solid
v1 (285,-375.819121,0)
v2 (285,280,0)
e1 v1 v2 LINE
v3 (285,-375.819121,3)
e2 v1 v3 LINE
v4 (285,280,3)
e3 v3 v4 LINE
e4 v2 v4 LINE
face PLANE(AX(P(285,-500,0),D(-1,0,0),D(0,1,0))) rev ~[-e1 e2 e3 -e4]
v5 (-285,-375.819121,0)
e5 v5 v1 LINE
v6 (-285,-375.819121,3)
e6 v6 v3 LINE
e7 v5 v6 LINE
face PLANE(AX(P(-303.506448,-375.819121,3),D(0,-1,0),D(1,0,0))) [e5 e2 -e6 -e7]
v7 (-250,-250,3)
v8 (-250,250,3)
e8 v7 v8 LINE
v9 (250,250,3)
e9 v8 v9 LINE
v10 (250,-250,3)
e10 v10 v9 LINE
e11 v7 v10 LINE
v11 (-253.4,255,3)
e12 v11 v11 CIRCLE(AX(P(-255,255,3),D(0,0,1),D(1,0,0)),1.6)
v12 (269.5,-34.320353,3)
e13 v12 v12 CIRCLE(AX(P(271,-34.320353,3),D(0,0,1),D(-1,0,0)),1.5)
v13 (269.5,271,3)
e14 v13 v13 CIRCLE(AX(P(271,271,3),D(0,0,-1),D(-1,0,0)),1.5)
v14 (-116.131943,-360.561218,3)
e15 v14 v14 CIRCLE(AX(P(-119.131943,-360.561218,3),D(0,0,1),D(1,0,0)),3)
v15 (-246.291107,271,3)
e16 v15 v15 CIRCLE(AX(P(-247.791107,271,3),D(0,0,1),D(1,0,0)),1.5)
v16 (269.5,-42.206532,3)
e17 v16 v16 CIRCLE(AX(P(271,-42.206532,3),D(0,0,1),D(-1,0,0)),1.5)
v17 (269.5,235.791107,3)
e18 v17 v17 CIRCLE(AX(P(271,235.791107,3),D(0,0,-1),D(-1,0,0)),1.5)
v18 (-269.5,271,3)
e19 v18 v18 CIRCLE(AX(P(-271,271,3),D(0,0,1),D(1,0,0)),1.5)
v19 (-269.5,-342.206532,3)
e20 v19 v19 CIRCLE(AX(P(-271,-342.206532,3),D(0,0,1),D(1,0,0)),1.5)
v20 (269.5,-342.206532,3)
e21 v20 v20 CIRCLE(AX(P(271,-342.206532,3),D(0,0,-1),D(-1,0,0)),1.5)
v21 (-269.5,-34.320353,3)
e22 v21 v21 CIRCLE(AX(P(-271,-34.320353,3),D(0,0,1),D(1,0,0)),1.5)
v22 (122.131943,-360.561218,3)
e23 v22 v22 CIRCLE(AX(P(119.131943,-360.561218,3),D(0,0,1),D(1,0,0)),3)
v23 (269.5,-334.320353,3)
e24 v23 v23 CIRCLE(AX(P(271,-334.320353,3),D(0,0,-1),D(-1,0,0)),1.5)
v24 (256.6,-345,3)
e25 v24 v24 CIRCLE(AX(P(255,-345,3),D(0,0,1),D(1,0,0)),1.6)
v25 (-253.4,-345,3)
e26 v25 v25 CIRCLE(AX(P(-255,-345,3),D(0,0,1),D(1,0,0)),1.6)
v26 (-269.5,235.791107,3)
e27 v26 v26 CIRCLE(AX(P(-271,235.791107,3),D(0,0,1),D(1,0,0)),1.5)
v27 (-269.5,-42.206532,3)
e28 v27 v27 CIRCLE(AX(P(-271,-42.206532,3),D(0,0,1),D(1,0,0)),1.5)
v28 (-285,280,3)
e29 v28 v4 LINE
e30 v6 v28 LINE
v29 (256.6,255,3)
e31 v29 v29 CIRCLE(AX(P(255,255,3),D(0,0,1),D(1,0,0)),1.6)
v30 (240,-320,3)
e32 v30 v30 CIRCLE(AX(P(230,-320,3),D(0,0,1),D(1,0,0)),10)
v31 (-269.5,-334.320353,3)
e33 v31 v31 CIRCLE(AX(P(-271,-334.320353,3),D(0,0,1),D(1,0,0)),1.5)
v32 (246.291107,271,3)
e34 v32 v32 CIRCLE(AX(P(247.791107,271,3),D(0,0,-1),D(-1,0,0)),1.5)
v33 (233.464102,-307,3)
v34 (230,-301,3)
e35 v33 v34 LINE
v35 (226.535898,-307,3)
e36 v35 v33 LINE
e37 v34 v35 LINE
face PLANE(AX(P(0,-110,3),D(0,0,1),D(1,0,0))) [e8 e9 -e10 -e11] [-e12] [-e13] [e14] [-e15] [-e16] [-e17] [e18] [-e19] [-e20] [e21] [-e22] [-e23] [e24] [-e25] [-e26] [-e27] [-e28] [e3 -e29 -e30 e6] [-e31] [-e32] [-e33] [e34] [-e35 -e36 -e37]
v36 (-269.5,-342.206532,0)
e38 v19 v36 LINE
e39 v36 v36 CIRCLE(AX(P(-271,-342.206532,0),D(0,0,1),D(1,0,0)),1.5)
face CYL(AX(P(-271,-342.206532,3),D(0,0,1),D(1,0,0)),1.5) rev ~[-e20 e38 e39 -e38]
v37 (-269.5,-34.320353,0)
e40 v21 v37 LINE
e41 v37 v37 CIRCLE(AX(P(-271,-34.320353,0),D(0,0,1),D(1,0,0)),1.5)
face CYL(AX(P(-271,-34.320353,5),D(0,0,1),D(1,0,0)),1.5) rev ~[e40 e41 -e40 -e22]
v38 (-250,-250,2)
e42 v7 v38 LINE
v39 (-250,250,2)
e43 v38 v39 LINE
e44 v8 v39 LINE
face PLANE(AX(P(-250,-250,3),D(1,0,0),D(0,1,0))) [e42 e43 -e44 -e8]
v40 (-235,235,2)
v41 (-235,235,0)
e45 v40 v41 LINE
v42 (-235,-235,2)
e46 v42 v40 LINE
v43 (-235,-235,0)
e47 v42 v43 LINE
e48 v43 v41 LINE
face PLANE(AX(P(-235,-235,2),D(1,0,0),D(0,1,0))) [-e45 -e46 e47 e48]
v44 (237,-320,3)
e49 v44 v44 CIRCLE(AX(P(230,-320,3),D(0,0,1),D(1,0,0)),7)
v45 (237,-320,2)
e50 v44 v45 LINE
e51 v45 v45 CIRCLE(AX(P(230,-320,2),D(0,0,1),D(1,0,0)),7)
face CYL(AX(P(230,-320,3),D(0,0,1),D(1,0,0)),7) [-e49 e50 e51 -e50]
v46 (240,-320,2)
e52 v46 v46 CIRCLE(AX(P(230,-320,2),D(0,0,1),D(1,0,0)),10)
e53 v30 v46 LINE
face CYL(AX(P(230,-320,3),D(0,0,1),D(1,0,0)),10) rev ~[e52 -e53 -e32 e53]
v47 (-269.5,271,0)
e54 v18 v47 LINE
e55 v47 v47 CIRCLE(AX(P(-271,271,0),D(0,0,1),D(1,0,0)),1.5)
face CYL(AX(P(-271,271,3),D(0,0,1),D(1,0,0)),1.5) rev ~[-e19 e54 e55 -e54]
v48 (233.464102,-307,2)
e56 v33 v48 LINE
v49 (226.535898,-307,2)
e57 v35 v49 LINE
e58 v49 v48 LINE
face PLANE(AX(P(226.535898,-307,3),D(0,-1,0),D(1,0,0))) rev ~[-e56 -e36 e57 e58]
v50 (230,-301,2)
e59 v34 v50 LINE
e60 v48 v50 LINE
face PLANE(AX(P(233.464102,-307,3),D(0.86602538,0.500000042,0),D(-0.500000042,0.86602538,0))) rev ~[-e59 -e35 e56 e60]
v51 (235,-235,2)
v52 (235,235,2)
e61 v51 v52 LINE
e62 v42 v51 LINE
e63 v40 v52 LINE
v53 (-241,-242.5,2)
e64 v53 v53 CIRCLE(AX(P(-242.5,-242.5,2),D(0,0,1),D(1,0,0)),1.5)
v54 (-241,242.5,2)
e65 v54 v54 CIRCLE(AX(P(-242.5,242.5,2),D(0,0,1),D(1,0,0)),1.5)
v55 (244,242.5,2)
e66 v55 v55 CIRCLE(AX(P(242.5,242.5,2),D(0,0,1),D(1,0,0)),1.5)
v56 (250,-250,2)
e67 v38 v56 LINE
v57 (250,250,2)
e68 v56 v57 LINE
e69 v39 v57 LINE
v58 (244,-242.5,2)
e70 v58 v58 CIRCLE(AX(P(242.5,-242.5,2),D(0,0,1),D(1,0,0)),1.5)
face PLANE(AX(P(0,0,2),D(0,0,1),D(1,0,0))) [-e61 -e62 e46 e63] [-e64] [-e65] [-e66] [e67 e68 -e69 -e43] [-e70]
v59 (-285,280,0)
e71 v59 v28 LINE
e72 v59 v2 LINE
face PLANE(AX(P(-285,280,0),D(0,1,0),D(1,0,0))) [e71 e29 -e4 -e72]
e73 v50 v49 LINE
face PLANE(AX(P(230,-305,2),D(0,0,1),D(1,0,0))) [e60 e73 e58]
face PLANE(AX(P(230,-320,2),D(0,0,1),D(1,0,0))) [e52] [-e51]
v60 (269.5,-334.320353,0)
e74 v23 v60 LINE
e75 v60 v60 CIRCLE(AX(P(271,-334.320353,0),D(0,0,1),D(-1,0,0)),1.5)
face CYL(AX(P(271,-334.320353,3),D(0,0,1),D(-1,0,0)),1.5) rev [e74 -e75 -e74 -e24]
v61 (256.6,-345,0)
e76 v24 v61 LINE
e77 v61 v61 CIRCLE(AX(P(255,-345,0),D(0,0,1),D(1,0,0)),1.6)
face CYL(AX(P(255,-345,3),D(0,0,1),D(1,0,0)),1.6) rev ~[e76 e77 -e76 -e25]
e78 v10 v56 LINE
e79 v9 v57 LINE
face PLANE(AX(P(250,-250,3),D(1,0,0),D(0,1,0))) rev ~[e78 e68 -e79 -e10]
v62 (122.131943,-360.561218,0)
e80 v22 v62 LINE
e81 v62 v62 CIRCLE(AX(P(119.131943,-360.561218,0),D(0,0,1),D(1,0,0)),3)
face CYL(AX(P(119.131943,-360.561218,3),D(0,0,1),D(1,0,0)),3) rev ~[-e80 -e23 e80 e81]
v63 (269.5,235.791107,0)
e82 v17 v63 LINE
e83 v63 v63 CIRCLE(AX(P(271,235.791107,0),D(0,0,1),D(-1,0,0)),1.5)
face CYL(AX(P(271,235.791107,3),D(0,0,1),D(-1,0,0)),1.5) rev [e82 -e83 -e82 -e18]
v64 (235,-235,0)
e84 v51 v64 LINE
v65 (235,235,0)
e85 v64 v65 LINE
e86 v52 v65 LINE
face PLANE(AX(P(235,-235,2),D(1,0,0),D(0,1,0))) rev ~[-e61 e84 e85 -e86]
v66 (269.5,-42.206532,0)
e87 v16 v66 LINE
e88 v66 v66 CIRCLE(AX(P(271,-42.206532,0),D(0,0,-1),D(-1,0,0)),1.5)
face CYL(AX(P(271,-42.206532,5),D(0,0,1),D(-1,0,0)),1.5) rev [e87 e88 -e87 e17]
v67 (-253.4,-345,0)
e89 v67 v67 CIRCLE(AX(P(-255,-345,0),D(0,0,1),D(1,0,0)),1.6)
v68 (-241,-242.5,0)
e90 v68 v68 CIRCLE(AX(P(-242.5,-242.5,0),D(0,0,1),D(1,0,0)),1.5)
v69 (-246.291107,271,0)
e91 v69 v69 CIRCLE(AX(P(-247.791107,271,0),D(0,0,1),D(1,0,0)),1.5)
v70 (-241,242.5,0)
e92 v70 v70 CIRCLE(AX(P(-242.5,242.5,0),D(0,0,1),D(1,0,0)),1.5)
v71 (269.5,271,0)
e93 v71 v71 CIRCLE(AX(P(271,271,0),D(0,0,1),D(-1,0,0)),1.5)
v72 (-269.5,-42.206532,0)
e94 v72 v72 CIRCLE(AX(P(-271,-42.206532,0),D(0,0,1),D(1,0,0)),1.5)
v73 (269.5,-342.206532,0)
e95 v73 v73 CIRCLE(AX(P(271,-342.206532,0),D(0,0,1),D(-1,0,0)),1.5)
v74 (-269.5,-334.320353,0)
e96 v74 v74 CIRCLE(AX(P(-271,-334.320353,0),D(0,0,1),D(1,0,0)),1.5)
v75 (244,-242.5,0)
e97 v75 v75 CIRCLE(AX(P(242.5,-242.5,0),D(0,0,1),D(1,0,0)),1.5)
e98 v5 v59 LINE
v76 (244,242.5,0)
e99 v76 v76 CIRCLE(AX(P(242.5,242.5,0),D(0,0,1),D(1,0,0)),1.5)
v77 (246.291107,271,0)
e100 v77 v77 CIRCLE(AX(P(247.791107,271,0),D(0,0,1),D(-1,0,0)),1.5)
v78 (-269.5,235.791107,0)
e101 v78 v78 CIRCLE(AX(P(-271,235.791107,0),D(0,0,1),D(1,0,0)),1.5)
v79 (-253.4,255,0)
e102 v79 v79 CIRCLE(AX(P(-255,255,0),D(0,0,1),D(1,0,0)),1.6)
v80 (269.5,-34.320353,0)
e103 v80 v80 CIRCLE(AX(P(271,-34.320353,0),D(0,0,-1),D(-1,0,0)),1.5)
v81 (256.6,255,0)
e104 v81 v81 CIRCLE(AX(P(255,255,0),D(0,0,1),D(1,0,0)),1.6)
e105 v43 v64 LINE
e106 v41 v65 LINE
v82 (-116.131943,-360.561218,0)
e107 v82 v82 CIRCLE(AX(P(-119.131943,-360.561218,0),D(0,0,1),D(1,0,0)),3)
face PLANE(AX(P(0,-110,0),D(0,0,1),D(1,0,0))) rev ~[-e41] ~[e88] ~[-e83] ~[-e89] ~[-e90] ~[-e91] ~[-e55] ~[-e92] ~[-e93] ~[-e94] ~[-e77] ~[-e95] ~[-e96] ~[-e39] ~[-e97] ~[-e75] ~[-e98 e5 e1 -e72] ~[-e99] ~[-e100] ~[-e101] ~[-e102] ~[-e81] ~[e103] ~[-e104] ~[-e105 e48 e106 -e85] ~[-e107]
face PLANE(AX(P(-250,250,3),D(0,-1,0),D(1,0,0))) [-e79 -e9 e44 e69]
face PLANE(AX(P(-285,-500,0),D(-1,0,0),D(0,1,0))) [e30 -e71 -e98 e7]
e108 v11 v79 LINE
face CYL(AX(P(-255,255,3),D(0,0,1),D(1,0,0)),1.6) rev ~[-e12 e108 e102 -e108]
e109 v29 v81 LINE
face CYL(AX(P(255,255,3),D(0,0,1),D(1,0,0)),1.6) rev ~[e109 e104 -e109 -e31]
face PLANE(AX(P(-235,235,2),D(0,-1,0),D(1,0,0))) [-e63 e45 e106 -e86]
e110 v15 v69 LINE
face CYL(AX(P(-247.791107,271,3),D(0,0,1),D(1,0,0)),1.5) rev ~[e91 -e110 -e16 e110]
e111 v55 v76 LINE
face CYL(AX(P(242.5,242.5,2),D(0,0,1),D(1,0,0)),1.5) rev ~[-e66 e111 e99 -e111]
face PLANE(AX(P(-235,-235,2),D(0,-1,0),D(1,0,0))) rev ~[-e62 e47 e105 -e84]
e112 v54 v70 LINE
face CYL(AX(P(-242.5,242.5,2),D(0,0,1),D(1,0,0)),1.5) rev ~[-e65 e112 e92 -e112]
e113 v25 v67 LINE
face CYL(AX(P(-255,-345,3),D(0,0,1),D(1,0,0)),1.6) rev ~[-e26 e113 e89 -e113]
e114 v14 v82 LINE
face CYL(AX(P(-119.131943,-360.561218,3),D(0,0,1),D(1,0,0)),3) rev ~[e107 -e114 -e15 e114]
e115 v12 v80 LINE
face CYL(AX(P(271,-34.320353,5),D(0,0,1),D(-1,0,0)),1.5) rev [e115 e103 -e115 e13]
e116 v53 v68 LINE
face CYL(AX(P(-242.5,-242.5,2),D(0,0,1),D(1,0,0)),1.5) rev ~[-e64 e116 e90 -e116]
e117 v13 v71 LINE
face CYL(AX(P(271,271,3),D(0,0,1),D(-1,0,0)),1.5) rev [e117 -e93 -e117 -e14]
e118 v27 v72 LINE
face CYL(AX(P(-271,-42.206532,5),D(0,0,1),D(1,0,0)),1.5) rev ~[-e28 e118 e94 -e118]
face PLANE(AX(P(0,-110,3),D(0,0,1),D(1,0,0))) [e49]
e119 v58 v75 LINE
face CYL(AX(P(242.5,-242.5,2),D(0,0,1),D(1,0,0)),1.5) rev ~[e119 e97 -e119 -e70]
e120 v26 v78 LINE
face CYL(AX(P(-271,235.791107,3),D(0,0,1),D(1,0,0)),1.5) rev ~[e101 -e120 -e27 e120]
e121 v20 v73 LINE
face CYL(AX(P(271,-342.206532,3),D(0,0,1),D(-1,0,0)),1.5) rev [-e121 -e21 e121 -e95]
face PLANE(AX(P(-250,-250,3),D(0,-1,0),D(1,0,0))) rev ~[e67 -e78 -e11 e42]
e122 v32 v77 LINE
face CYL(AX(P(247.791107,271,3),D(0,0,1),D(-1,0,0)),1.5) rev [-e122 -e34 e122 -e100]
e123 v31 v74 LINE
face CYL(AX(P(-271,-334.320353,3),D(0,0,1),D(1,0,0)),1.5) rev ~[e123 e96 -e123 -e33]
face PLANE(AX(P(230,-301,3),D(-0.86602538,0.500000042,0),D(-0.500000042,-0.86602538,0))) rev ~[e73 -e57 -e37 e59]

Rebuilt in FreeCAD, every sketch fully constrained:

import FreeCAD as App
import Part
import Sketcher
Q = App.Units.Quantity


def add_polygon(sketch, points):
    """Adds a closed chain of lines whose ends are joined by coincident constraints."""
    first, n = sketch.GeometryCount, len(points)
    for a, b in zip(points, points[1:] + points[:1]):
        sketch.addGeometry(Part.LineSegment(App.Vector(*a, 0), App.Vector(*b, 0)), False)
    for i in range(n):
        sketch.addConstraint(Sketcher.Constraint("Coincident", first + i, 2, first + (i + 1) % n, 1))

doc = App.newDocument("Part")
body = doc.addObject("PartDesign::Body", "Body")

# Sketch on XY plane
sketch1 = body.newObject("Sketcher::SketchObject", "Sketch")
sketch1.AttachmentSupport = (doc.getObject("XY_Plane"), [""])
sketch1.MapMode = "FlatFace"
add_polygon(sketch1, [(-285, 280), (-285, -500), (285, -500), (285, 280)])  # lines 0-3
sketch1.addConstraint(Sketcher.Constraint("Vertical", 0))
sketch1.addConstraint(Sketcher.Constraint("Horizontal", 1))
sketch1.addConstraint(Sketcher.Constraint("Vertical", 2))
sketch1.addConstraint(Sketcher.Constraint("Horizontal", 3))
sketch1.addConstraint(Sketcher.Constraint("DistanceX", 1, 1, 1, 2, 570.0))
sketch1.addConstraint(Sketcher.Constraint("DistanceY", 0, 2, 0, 1, 780.0))
sketch1.addConstraint(Sketcher.Constraint("DistanceX", 0, 2, -1, 1, 285.0))
sketch1.addConstraint(Sketcher.Constraint("DistanceY", 0, 2, -1, 1, 500.0))
pad1 = body.newObject("PartDesign::Pad", "Pad")
pad1.Profile = sketch1
pad1.Length = 3

# Sketch on XY plane
sketch2 = body.newObject("Sketcher::SketchObject", "Sketch001")
sketch2.AttachmentSupport = (doc.getObject("XY_Plane"), [""])
sketch2.MapMode = "FlatFace"
sketch2.AttachmentOffset = App.Placement(App.Vector(0, 0, 3), App.Rotation())
add_polygon(sketch2, [(-250, 250), (-250, -250), (250, -250), (250, 250)])  # lines 0-3
sketch2.addConstraint(Sketcher.Constraint("Vertical", 0))
sketch2.addConstraint(Sketcher.Constraint("Horizontal", 1))
sketch2.addConstraint(Sketcher.Constraint("Vertical", 2))
sketch2.addConstraint(Sketcher.Constraint("Horizontal", 3))
sketch2.addConstraint(Sketcher.Constraint("Symmetric", 0, 2, 2, 2, -1, 1))
sketch2.addConstraint(Sketcher.Constraint("Equal", 3, 0))
sketch2.addConstraint(Sketcher.Constraint("DistanceX", 1, 1, 1, 2, 500.0))
pocket1 = body.newObject("PartDesign::Pocket", "Pocket")
pocket1.Profile = sketch2
pocket1.Length = 1

# Sketch on XY plane
sketch3 = body.newObject("Sketcher::SketchObject", "Sketch002")
sketch3.AttachmentSupport = (doc.getObject("XY_Plane"), [""])
sketch3.MapMode = "FlatFace"
sketch3.AttachmentOffset = App.Placement(App.Vector(0, 0, 3), App.Rotation())
sketch3.addGeometry(Part.Circle(App.Vector(230, -320, 0), App.Vector(0, 0, 1), 10), False)  # 0
sketch3.addGeometry(Part.Circle(App.Vector(230, -320, 0), App.Vector(0, 0, 1), 7), False)  # 1
add_polygon(sketch3, [(230, -301), (227, -307), (233, -307)])  # lines 2-4
sketch3.addConstraint(Sketcher.Constraint("Horizontal", 3))
sketch3.addConstraint(Sketcher.Constraint("Coincident", 1, 3, 0, 3))
sketch3.addConstraint(Sketcher.Constraint("Vertical", 1, 3, 4, 2))
sketch3.addConstraint(Sketcher.Constraint("Equal", 2, 4))
sketch3.addConstraint(Sketcher.Constraint("Diameter", 0, 20.0))
sketch3.addConstraint(Sketcher.Constraint("Diameter", 1, 14.0))
sketch3.addConstraint(Sketcher.Constraint("Angle", 2, Q("-120.000003 deg")))
sketch3.addConstraint(Sketcher.Constraint("DistanceX", -1, 1, 0, 3, 230.0))
sketch3.addConstraint(Sketcher.Constraint("DistanceY", 0, 3, -1, 1, 320.0))
sketch3.addConstraint(Sketcher.Constraint("DistanceY", 2, 2, -1, 1, 307.0))
sketch3.addConstraint(Sketcher.Constraint("DistanceY", 4, 2, -1, 1, 301.0))
pocket2 = body.newObject("PartDesign::Pocket", "Pocket001")
pocket2.Profile = sketch3
pocket2.Length = 1

# Sketch on XY plane
sketch4 = body.newObject("Sketcher::SketchObject", "Sketch003")
sketch4.AttachmentSupport = (doc.getObject("XY_Plane"), [""])
sketch4.MapMode = "FlatFace"
sketch4.AttachmentOffset = App.Placement(App.Vector(0, 0, 3), App.Rotation())
sketch4.addGeometry(Part.Circle(App.Vector(-255, 255, 0), App.Vector(0, 0, 1), 1.6), False)
sketch4.addGeometry(Part.Circle(App.Vector(255, 255, 0), App.Vector(0, 0, 1), 1.6), False)
sketch4.addGeometry(Part.Circle(App.Vector(255, -345, 0), App.Vector(0, 0, 1), 1.6), False)
sketch4.addGeometry(Part.Circle(App.Vector(-255, -345, 0), App.Vector(0, 0, 1), 1.6), False)
sketch4.addConstraint(Sketcher.Constraint("Equal", 0, 1))
sketch4.addConstraint(Sketcher.Constraint("Equal", 1, 2))
sketch4.addConstraint(Sketcher.Constraint("Equal", 2, 3))
sketch4.addConstraint(Sketcher.Constraint("Symmetric", 0, 3, 1, 3, -2))
sketch4.addConstraint(Sketcher.Constraint("Symmetric", 2, 3, 3, 3, -2))
sketch4.addConstraint(Sketcher.Constraint("Vertical", 1, 3, 2, 3))
sketch4.addConstraint(Sketcher.Constraint("Diameter", 0, 3.2))
sketch4.addConstraint(Sketcher.Constraint("DistanceX", 0, 3, -1, 1, 255.0))
sketch4.addConstraint(Sketcher.Constraint("DistanceY", -1, 1, 0, 3, 255.0))
sketch4.addConstraint(Sketcher.Constraint("DistanceY", 2, 3, -1, 1, 345.0))
pocket3 = body.newObject("PartDesign::Pocket", "Pocket002")
pocket3.Profile = sketch4
pocket3.Type = "ThroughAll"

# Sketch on XY plane
sketch5 = body.newObject("Sketcher::SketchObject", "Sketch004")
sketch5.AttachmentSupport = (doc.getObject("XY_Plane"), [""])
sketch5.MapMode = "FlatFace"
sketch5.AttachmentOffset = App.Placement(App.Vector(0, 0, 2), App.Rotation())
add_polygon(sketch5, [(-235, 235), (-235, -235), (235, -235), (235, 235)])  # lines 0-3
sketch5.addConstraint(Sketcher.Constraint("Vertical", 0))
sketch5.addConstraint(Sketcher.Constraint("Horizontal", 1))
sketch5.addConstraint(Sketcher.Constraint("Vertical", 2))
sketch5.addConstraint(Sketcher.Constraint("Horizontal", 3))
sketch5.addConstraint(Sketcher.Constraint("Symmetric", 0, 2, 2, 2, -1, 1))
sketch5.addConstraint(Sketcher.Constraint("Equal", 3, 0))
sketch5.addConstraint(Sketcher.Constraint("DistanceX", 1, 1, 1, 2, 470.0))
pocket4 = body.newObject("PartDesign::Pocket", "Pocket003")
pocket4.Profile = sketch5
pocket4.Length = 5

# Sketch on XY plane
sketch6 = body.newObject("Sketcher::SketchObject", "Sketch005")
sketch6.AttachmentSupport = (doc.getObject("XY_Plane"), [""])
sketch6.MapMode = "FlatFace"
sketch6.AttachmentOffset = App.Placement(App.Vector(0, 0, 3), App.Rotation())
sketch6.addGeometry(Part.Circle(App.Vector(-271, 271, 0), App.Vector(0, 0, 1), 1.5), False)
sketch6.addGeometry(Part.Circle(App.Vector(-247.8, 271, 0), App.Vector(0, 0, 1), 1.5), False)
sketch6.addGeometry(Part.Circle(App.Vector(-271, 235.8, 0), App.Vector(0, 0, 1), 1.5), False)
sketch6.addGeometry(Part.Circle(App.Vector(-271, -334.3, 0), App.Vector(0, 0, 1), 1.5), False)
sketch6.addGeometry(Part.Circle(App.Vector(-271, -342.2, 0), App.Vector(0, 0, 1), 1.5), False)
sketch6.addConstraint(Sketcher.Constraint("Equal", 0, 1))
sketch6.addConstraint(Sketcher.Constraint("Equal", 1, 2))
sketch6.addConstraint(Sketcher.Constraint("Equal", 2, 3))
sketch6.addConstraint(Sketcher.Constraint("Equal", 3, 4))
sketch6.addConstraint(Sketcher.Constraint("Horizontal", 0, 3, 1, 3))
sketch6.addConstraint(Sketcher.Constraint("Vertical", 0, 3, 2, 3))
sketch6.addConstraint(Sketcher.Constraint("Vertical", 2, 3, 3, 3))
sketch6.addConstraint(Sketcher.Constraint("Vertical", 3, 3, 4, 3))
sketch6.addConstraint(Sketcher.Constraint("Diameter", 0, 3.0))
sketch6.addConstraint(Sketcher.Constraint("DistanceX", 0, 3, -1, 1, 271.0))
sketch6.addConstraint(Sketcher.Constraint("DistanceY", -1, 1, 0, 3, 271.0))
sketch6.addConstraint(Sketcher.Constraint("DistanceY", 4, 3, -1, 1, 342.206532))
sketch6.addConstraint(Sketcher.Constraint("DistanceY", 3, 3, 2, 3, 570.11146))
sketch6.addConstraint(Sketcher.Constraint("DistanceY", 4, 3, 3, 3, 7.886179))
sketch6.addConstraint(Sketcher.Constraint("DistanceX", 1, 3, -1, 1, 247.791107))
pocket5 = body.newObject("PartDesign::Pocket", "Pocket004")
pocket5.Profile = sketch6
pocket5.Type = "ThroughAll"
doc.recompute()

mirrored = body.newObject("PartDesign::Mirrored", "Mirrored")
mirrored.Originals = [pocket5]
mirrored.MirrorPlane = (doc.getObject("YZ_Plane"), [""])
body.Tip = mirrored

# Sketch on XY plane
sketch7 = body.newObject("Sketcher::SketchObject", "Sketch006")
sketch7.AttachmentSupport = (doc.getObject("XY_Plane"), [""])
sketch7.MapMode = "FlatFace"
sketch7.AttachmentOffset = App.Placement(App.Vector(0, 0, 5), App.Rotation())
sketch7.addGeometry(Part.Circle(App.Vector(-271, -34.3, 0), App.Vector(0, 0, 1), 1.5), False)
sketch7.addGeometry(Part.Circle(App.Vector(-271, -42.2, 0), App.Vector(0, 0, 1), 1.5), False)
sketch7.addConstraint(Sketcher.Constraint("Equal", 0, 1))
sketch7.addConstraint(Sketcher.Constraint("Vertical", 0, 3, 1, 3))
sketch7.addConstraint(Sketcher.Constraint("Diameter", 0, 3.0))
sketch7.addConstraint(Sketcher.Constraint("DistanceX", 0, 3, -1, 1, 271.0))
sketch7.addConstraint(Sketcher.Constraint("DistanceY", 1, 3, 0, 3, 7.886179))
sketch7.addConstraint(Sketcher.Constraint("DistanceY", 0, 3, -1, 1, 34.320353))
pocket6 = body.newObject("PartDesign::Pocket", "Pocket005")
pocket6.Profile = sketch7
pocket6.Length = 5
doc.recompute()

mirrored2 = body.newObject("PartDesign::Mirrored", "Mirrored001")
mirrored2.Originals = [pocket6]
mirrored2.MirrorPlane = (doc.getObject("YZ_Plane"), [""])
body.Tip = mirrored2

# Sketch on XY plane
sketch8 = body.newObject("Sketcher::SketchObject", "Sketch007")
sketch8.AttachmentSupport = (doc.getObject("XY_Plane"), [""])
sketch8.MapMode = "FlatFace"
sketch8.AttachmentOffset = App.Placement(App.Vector(0, 0, 2), App.Rotation())
sketch8.addGeometry(Part.Circle(App.Vector(-242.5, 242.5, 0), App.Vector(0, 0, 1), 1.5), False)
sketch8.addGeometry(Part.Circle(App.Vector(242.5, 242.5, 0), App.Vector(0, 0, 1), 1.5), False)
sketch8.addGeometry(Part.Circle(App.Vector(-242.5, -242.5, 0), App.Vector(0, 0, 1), 1.5), False)
sketch8.addGeometry(Part.Circle(App.Vector(242.5, -242.5, 0), App.Vector(0, 0, 1), 1.5), False)
sketch8.addConstraint(Sketcher.Constraint("Equal", 0, 1))
sketch8.addConstraint(Sketcher.Constraint("Equal", 1, 2))
sketch8.addConstraint(Sketcher.Constraint("Equal", 2, 3))
sketch8.addConstraint(Sketcher.Constraint("Symmetric", 1, 3, 2, 3, -1, 1))
sketch8.addConstraint(Sketcher.Constraint("Symmetric", 0, 3, 3, 3, -1, 1))
sketch8.addConstraint(Sketcher.Constraint("Symmetric", 0, 3, 1, 3, -2))
sketch8.addConstraint(Sketcher.Constraint("Diameter", 0, 3.0))
sketch8.addConstraint(Sketcher.Constraint("DistanceX", 0, 3, 1, 3, 485.0))
sketch8.addConstraint(Sketcher.Constraint("DistanceY", 2, 3, 0, 3, 485.0))
pocket7 = body.newObject("PartDesign::Pocket", "Pocket006")
pocket7.Profile = sketch8
pocket7.Type = "ThroughAll"

# Sketch on XY plane
sketch9 = body.newObject("Sketcher::SketchObject", "Sketch008")
sketch9.AttachmentSupport = (doc.getObject("XY_Plane"), [""])
sketch9.MapMode = "FlatFace"
sketch9.AttachmentOffset = App.Placement(App.Vector(0, 0, 3), App.Rotation())
add_polygon(sketch9, [(-304, -376), (-304, -522), (303, -522), (303, -376)])  # lines 0-3
sketch9.addConstraint(Sketcher.Constraint("Vertical", 0))
sketch9.addConstraint(Sketcher.Constraint("Horizontal", 1))
sketch9.addConstraint(Sketcher.Constraint("Vertical", 2))
sketch9.addConstraint(Sketcher.Constraint("Horizontal", 3))
sketch9.addConstraint(Sketcher.Constraint("DistanceX", 1, 1, 1, 2, 606.362244))
sketch9.addConstraint(Sketcher.Constraint("DistanceY", 0, 2, 0, 1, 146.592987))
sketch9.addConstraint(Sketcher.Constraint("DistanceX", 0, 2, -1, 1, 303.506448))
sketch9.addConstraint(Sketcher.Constraint("DistanceY", 0, 2, -1, 1, 522.412109))
pocket8 = body.newObject("PartDesign::Pocket", "Pocket007")
pocket8.Profile = sketch9
pocket8.Length = 5

# Sketch on XY plane
sketch10 = body.newObject("Sketcher::SketchObject", "Sketch009")
sketch10.AttachmentSupport = (doc.getObject("XY_Plane"), [""])
sketch10.MapMode = "FlatFace"
sketch10.AttachmentOffset = App.Placement(App.Vector(0, 0, 3), App.Rotation())
sketch10.addGeometry(Part.Circle(App.Vector(-119.1, -360.6, 0), App.Vector(0, 0, 1), 3), False)
sketch10.addGeometry(Part.Circle(App.Vector(119.1, -360.6, 0), App.Vector(0, 0, 1), 3), False)
sketch10.addConstraint(Sketcher.Constraint("Equal", 0, 1))
sketch10.addConstraint(Sketcher.Constraint("Symmetric", 0, 3, 1, 3, -2))
sketch10.addConstraint(Sketcher.Constraint("Diameter", 0, 6.0))
sketch10.addConstraint(Sketcher.Constraint("DistanceY", 0, 3, -1, 1, 360.561218))
sketch10.addConstraint(Sketcher.Constraint("DistanceX", 0, 3, -1, 1, 119.131943))
pocket9 = body.newObject("PartDesign::Pocket", "Pocket008")
pocket9.Profile = sketch10
pocket9.Length = 5

doc.recompute()
